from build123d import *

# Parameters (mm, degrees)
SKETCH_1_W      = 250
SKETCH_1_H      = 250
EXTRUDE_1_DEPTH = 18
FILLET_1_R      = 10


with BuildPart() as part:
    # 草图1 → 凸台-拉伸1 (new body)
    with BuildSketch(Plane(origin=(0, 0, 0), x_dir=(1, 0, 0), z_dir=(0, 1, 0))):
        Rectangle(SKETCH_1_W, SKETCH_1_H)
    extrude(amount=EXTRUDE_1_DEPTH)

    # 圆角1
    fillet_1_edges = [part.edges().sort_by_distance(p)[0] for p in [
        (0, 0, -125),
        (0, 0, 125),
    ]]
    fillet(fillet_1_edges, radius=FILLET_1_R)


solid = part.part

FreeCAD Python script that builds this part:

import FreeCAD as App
import Part
import Sketcher
from FreeCAD import Vector
Q = App.Units.Quantity


def edges_at(feature, points):
    """Names of the edges that pass closest to the given points."""
    edges = feature.Shape.Edges
    near = lambda p: min(range(len(edges)), key=lambda i: edges[i].distToShape(Part.Vertex(*p))[0])
    return sorted({f"Edge{near(p) + 1}" for p in points})

doc = App.newDocument("Part")
params = doc.addObject("Spreadsheet::Sheet", "Params")
for row, (alias, value) in enumerate([
    ("sketch1_width", "250 mm"),
    ("pad1_length", "18 mm"),
    ("fillet_radius", "10 mm"),
], start=1):
    params.set(f"A{row}", alias)
    params.set(f"B{row}", "=" + value)
    params.setAlias(f"B{row}", alias)

body = doc.addObject("PartDesign::Body", "Body")

# Sketch on XZ plane
sketch1 = body.newObject("Sketcher::SketchObject", "Sketch")
sketch1.AttachmentSupport = (doc.getObject("XZ_Plane"), [""])
sketch1.MapMode = "FlatFace"
sketch1.addGeometry([
    Part.LineSegment(Vector(-125, -125, 0), Vector(-125, 125, 0)),
    Part.LineSegment(Vector(-125, 125, 0), Vector(125, 125, 0)),
    Part.LineSegment(Vector(125, 125, 0), Vector(125, -125, 0)),
    Part.LineSegment(Vector(125, -125, 0), Vector(-125, -125, 0)),
], False)
sketch1.addConstraint([
    Sketcher.Constraint("Coincident", 0, 2, 1, 1),
    Sketcher.Constraint("Coincident", 1, 2, 2, 1),
    Sketcher.Constraint("Coincident", 2, 2, 3, 1),
    Sketcher.Constraint("Coincident", 3, 2, 0, 1),
    Sketcher.Constraint("Vertical", 0),
    Sketcher.Constraint("Horizontal", 1),
    Sketcher.Constraint("Vertical", 2),
    Sketcher.Constraint("Horizontal", 3),
    Sketcher.Constraint("Symmetric", 0, 2, 2, 2, -1, 1),
    Sketcher.Constraint("Equal", 3, 0),
    Sketcher.Constraint("DistanceX", 1, 1, 1, 2, Q("250 mm")),
])
sketch1.setExpression("Constraints[10]", "Params.sketch1_width")
pad1 = body.newObject("PartDesign::Pad", "Pad")
pad1.Profile = sketch1
pad1.setExpression("Length", "Params.pad1_length")
pad1.Reversed = True
doc.recompute()

fillet = body.newObject("PartDesign::Fillet", "Fillet")
fillet.Base = (pad1, edges_at(pad1, [(0, 0, -125), (0, 0, 125)]))
fillet.setExpression("Radius", "Params.fillet_radius")

doc.recompute()
